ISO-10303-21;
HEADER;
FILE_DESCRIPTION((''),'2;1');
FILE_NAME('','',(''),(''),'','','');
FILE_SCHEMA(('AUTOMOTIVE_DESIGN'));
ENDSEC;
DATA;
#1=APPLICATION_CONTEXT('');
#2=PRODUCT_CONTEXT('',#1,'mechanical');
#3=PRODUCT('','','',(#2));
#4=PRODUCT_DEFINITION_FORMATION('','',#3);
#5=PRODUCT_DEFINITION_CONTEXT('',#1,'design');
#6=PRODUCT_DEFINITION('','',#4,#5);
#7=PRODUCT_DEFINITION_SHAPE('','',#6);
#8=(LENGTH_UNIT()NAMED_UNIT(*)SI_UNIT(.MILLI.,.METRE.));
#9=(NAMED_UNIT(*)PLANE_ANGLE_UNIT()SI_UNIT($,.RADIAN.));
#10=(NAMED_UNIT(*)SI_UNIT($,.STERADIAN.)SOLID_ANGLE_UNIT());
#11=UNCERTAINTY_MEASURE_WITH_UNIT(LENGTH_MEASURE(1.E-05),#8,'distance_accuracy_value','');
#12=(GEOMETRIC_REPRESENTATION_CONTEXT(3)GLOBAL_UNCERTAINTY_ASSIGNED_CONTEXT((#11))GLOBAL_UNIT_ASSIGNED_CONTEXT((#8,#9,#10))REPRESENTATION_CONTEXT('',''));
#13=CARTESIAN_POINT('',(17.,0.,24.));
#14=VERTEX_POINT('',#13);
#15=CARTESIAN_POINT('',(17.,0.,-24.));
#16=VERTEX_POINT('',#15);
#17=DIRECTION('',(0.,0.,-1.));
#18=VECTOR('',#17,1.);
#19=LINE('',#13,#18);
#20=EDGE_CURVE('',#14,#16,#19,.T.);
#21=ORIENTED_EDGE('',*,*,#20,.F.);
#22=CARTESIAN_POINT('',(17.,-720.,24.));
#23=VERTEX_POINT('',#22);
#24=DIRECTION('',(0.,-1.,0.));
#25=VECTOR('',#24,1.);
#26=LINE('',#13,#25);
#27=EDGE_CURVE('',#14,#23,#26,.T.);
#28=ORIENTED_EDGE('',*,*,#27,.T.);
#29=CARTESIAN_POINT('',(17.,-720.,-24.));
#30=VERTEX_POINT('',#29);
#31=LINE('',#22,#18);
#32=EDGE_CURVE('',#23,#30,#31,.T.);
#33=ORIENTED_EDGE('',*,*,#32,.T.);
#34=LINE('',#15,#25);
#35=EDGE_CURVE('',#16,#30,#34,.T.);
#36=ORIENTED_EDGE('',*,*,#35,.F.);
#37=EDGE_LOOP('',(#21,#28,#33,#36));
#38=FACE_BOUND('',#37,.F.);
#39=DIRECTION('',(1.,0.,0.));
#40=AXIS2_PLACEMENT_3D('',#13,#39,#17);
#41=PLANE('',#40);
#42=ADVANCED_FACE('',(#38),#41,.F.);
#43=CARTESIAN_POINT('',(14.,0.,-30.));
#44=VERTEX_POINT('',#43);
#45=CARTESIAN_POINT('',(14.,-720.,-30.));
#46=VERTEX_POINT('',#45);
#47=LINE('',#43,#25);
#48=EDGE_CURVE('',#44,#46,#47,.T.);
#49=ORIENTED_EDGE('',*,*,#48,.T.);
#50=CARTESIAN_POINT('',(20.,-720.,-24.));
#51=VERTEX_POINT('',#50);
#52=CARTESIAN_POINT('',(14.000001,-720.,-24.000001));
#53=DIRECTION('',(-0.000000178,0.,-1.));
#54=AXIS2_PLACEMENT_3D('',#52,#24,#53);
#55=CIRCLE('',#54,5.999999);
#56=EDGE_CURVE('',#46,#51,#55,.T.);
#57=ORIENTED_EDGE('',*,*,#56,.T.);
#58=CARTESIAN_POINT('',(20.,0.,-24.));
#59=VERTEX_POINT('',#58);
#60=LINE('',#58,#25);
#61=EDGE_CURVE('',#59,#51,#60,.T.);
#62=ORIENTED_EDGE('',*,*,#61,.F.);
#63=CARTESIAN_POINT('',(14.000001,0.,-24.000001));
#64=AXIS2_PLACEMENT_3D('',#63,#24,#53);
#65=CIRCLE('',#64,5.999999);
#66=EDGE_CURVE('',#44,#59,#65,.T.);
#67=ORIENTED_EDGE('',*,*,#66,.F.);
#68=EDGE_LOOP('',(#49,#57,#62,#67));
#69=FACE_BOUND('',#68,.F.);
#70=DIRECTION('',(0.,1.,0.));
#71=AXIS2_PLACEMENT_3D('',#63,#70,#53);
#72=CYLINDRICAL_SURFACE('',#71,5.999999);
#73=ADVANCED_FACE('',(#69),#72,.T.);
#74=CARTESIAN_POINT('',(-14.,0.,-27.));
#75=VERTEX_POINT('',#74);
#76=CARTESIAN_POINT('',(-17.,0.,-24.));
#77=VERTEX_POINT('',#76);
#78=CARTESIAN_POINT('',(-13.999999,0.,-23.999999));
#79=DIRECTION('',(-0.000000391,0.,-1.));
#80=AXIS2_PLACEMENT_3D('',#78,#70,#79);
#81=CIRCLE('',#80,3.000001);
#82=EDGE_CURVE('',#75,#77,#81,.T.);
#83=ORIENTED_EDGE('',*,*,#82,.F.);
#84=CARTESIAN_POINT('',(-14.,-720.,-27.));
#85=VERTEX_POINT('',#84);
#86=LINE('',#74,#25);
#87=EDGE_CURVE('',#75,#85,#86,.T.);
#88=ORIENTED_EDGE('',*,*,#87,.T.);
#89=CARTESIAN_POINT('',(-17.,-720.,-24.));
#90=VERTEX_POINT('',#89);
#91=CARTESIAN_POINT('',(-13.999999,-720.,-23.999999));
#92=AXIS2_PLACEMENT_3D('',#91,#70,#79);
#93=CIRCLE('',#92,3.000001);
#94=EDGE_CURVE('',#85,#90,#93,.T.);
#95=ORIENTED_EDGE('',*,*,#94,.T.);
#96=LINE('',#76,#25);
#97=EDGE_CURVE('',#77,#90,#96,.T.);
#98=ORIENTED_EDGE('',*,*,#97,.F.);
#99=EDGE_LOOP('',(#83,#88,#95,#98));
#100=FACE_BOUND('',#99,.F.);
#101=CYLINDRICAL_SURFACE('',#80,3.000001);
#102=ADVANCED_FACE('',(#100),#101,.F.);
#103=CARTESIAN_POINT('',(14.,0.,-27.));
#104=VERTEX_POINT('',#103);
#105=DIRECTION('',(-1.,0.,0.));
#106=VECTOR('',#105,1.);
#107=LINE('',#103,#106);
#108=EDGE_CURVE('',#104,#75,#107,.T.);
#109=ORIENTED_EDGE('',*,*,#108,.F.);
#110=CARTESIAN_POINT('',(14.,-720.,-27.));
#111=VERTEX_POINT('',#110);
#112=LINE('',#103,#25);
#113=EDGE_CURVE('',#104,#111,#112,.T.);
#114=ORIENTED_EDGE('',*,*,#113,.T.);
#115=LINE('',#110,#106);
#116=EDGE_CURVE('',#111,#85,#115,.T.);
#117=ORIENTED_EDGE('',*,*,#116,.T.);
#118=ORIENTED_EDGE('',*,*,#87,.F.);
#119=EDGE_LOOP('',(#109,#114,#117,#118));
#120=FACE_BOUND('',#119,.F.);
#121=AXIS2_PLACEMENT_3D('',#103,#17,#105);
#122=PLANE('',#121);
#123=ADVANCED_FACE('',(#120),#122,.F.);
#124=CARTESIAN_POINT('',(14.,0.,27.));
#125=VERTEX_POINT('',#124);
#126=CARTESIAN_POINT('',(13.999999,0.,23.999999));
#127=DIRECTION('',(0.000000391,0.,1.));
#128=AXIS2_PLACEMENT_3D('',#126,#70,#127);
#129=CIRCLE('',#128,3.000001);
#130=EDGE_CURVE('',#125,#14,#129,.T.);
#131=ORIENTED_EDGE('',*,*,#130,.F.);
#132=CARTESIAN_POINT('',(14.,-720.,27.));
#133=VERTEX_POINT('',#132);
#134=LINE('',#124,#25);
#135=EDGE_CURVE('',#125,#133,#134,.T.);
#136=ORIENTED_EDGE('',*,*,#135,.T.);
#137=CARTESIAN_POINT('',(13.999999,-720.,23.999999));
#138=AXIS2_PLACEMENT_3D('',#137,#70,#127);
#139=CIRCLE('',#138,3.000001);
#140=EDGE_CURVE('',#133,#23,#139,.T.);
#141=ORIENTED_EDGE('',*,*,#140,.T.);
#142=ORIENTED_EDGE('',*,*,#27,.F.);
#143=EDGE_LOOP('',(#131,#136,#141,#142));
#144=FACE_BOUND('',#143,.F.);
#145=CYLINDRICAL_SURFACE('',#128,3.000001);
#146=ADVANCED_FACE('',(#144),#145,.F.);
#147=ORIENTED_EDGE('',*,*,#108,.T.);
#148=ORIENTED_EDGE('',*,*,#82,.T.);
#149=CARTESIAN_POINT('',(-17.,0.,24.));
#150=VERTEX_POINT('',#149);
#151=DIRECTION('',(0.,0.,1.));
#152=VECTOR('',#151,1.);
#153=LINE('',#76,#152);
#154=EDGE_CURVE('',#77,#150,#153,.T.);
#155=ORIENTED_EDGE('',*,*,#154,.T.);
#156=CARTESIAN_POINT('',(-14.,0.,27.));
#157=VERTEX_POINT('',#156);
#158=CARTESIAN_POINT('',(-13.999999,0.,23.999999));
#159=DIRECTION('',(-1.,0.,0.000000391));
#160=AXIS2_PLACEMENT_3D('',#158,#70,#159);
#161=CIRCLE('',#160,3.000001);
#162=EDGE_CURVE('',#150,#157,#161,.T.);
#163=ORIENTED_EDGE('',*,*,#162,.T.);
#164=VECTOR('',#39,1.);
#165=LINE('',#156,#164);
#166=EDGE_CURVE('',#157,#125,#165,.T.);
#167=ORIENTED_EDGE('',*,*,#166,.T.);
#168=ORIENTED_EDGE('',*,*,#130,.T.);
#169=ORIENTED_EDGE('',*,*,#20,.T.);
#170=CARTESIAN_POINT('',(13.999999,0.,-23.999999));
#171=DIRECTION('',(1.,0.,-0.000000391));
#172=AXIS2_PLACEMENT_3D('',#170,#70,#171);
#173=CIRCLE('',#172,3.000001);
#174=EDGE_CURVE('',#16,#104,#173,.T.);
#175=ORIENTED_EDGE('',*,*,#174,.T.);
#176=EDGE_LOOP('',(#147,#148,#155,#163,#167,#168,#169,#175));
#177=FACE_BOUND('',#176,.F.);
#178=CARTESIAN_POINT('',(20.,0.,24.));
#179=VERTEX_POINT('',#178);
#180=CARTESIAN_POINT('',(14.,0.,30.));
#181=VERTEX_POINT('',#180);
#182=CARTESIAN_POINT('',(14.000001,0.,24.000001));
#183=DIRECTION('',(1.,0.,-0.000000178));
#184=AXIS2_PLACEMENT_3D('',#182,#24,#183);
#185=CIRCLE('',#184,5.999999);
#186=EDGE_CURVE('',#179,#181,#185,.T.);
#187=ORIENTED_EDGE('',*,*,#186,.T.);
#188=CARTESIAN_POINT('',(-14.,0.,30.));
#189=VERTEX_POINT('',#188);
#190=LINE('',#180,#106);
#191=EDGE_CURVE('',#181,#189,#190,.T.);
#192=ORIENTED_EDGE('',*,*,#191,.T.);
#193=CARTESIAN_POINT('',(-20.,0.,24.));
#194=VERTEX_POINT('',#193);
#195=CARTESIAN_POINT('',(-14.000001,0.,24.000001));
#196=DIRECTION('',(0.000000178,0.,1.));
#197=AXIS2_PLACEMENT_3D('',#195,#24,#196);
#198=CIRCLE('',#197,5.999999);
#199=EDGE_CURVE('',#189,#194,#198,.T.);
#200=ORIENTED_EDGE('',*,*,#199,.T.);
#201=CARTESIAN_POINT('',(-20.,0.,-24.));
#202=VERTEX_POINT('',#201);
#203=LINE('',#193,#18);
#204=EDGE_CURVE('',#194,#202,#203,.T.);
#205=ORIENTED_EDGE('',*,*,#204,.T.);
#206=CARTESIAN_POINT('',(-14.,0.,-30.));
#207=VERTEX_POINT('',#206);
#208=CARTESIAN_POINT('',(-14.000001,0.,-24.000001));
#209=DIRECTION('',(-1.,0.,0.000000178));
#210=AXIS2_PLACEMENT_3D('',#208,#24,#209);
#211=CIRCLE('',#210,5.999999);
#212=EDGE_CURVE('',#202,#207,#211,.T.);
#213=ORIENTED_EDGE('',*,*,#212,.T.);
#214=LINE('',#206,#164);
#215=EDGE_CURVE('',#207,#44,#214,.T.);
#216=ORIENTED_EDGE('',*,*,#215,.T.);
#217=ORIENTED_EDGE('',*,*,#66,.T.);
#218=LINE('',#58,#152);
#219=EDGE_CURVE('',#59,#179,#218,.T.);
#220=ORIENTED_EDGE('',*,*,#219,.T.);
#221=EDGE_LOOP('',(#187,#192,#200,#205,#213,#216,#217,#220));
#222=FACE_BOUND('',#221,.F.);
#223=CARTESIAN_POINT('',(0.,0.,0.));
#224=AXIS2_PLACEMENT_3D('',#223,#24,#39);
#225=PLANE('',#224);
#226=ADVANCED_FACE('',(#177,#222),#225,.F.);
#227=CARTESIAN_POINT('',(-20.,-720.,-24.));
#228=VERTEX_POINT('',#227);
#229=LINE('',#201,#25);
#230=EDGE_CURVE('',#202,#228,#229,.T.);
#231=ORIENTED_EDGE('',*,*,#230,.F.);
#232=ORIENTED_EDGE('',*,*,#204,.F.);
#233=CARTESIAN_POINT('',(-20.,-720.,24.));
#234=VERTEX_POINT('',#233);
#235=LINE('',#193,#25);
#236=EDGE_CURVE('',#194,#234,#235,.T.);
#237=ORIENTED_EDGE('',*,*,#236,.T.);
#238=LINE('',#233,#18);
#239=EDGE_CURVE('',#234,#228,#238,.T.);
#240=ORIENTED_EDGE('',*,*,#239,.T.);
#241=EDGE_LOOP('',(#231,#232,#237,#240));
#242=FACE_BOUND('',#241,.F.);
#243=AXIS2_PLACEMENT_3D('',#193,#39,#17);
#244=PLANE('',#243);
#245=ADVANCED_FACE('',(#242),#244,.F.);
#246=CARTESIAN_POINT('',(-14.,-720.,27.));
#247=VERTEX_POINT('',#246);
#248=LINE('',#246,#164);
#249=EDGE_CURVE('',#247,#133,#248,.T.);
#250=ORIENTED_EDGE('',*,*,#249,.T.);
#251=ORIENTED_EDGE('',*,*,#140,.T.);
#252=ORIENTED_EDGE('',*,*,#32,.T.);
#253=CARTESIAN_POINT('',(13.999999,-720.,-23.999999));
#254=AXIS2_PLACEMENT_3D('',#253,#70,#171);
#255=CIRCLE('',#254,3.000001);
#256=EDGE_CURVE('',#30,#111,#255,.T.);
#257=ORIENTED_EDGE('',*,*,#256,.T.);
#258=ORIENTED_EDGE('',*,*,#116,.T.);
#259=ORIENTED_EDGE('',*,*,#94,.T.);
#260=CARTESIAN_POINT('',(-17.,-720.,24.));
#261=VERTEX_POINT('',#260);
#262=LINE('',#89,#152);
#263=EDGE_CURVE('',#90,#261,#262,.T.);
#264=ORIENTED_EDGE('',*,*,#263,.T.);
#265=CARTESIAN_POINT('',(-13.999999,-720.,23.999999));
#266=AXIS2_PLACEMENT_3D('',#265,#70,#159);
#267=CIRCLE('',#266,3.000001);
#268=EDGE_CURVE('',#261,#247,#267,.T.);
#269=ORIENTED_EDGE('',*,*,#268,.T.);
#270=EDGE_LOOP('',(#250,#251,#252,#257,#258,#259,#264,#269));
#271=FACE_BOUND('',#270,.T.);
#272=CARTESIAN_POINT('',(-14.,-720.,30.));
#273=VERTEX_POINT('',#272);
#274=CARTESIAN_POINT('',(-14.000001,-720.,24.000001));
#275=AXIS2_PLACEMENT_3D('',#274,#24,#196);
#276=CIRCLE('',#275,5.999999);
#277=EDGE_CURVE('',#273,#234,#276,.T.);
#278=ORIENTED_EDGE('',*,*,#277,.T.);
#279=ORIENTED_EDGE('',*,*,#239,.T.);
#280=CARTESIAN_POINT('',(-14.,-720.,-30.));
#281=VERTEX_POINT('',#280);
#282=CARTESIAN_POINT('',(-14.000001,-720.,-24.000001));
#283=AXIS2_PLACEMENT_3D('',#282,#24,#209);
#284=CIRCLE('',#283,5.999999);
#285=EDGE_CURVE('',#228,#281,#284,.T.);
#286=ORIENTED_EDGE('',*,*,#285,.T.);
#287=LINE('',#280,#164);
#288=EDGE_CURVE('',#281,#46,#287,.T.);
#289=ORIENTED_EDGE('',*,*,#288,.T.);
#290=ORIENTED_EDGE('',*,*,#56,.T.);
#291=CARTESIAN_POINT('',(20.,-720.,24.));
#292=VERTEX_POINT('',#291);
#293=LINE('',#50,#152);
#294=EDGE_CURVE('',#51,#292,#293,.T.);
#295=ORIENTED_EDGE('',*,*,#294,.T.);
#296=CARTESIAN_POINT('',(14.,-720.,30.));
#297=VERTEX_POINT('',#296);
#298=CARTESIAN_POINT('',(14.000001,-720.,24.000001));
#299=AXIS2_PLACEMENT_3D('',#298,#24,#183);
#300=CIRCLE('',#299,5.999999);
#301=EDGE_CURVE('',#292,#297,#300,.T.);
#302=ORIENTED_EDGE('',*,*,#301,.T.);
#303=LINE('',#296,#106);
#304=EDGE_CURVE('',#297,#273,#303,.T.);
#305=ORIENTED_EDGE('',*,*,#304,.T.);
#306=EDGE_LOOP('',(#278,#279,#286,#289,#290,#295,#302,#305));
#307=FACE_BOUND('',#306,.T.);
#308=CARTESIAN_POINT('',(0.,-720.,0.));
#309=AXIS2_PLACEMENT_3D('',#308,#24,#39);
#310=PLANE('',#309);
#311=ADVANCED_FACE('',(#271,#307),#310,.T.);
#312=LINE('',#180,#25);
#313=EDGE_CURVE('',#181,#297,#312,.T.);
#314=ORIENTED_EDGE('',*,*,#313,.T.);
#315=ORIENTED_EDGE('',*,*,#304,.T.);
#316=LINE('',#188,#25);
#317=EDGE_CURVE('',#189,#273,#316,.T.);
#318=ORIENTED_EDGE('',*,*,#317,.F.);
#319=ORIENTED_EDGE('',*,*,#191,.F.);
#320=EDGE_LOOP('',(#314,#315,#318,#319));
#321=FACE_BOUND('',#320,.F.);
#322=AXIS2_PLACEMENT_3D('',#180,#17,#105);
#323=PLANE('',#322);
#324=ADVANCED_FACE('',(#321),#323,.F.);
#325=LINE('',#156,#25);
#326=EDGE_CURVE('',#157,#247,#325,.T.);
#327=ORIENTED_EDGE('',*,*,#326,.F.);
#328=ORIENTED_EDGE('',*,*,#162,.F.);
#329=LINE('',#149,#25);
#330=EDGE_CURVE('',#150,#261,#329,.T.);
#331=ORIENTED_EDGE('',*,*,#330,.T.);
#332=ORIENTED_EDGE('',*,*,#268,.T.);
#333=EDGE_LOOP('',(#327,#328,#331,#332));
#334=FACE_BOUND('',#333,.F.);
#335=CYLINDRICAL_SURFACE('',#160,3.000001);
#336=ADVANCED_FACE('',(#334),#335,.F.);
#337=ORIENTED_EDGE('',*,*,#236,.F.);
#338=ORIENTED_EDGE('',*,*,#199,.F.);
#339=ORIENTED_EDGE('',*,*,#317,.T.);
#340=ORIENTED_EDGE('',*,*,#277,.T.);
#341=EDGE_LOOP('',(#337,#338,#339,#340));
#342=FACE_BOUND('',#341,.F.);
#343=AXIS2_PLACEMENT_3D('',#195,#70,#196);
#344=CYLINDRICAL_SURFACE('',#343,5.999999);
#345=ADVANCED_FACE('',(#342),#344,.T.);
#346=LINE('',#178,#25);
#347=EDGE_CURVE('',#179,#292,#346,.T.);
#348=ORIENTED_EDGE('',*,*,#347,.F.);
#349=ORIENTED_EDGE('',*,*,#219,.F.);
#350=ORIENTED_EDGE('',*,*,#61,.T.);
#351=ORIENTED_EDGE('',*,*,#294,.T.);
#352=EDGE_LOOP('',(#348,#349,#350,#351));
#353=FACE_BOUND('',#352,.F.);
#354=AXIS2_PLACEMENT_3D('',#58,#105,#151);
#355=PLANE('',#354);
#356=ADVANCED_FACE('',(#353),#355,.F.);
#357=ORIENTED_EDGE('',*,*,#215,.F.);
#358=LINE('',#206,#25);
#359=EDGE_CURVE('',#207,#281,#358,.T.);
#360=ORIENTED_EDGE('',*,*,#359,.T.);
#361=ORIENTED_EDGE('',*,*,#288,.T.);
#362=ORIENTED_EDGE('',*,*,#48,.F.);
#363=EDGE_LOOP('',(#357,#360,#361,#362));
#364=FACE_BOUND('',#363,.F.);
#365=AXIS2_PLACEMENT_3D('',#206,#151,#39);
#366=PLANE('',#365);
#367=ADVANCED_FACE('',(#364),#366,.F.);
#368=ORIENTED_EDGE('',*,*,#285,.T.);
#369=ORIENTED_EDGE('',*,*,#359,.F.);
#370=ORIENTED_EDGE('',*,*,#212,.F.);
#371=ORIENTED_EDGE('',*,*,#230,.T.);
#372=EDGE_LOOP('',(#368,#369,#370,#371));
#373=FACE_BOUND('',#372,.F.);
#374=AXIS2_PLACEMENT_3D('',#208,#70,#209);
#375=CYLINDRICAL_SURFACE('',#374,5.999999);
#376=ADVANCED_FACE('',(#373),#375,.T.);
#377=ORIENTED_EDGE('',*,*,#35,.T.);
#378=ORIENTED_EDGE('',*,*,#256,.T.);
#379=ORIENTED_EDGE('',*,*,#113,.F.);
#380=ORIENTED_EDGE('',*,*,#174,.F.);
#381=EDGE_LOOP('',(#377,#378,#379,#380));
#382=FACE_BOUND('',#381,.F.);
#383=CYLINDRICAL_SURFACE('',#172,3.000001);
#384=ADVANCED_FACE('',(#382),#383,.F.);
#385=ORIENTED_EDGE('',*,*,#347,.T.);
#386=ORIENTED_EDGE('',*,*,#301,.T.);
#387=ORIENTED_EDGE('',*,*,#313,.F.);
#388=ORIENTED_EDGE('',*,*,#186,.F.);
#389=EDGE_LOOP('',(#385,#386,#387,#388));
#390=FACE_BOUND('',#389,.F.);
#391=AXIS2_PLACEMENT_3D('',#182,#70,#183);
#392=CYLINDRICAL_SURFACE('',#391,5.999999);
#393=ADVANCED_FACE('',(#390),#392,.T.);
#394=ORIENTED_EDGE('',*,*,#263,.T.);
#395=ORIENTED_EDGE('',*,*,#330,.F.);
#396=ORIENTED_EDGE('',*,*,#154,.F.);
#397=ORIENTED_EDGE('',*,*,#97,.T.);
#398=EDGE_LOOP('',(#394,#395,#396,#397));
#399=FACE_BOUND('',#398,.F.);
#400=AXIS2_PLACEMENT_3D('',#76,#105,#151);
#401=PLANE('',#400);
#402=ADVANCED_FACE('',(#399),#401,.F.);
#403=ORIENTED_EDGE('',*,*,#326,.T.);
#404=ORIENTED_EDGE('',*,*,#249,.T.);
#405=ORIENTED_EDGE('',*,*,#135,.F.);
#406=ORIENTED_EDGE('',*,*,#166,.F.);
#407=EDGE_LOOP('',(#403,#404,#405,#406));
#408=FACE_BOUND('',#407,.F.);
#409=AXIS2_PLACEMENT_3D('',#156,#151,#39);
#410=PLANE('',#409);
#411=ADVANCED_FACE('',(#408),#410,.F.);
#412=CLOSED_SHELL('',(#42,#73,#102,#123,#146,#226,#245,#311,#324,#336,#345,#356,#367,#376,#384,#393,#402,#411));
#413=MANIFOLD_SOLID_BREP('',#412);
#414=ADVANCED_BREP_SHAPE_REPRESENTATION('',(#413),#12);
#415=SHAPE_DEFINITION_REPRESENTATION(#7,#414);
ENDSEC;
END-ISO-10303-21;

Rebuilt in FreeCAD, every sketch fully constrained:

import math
import FreeCAD as App
import Part
import Sketcher

doc = App.newDocument("Part")
body = doc.addObject("PartDesign::Body", "Body")

# Sketch on XZ plane
sketch1 = doc.addObject("Sketcher::SketchObject", "Sketch")
body.addObject(sketch1)
sketch1.AttachmentSupport = (doc.XZ_Plane, [""])
sketch1.MapMode = "FlatFace"
sketch1.addGeometry([
    Part.LineSegment(App.Vector(14, 30, 0), App.Vector(-14, 30, 0)),  # 0
    Part.ArcOfCircle(Part.Circle(App.Vector(-14, 24, 0), App.Vector(0, 0, 1), 6), math.radians(90), math.radians(180)),  # 1
    Part.LineSegment(App.Vector(-20, 24, 0), App.Vector(-20, -24, 0)),  # 2
    Part.ArcOfCircle(Part.Circle(App.Vector(-14, -24, 0), App.Vector(0, 0, 1), 6), math.radians(180), math.radians(270)),  # 3
    Part.LineSegment(App.Vector(-14, -30, 0), App.Vector(14, -30, 0)),  # 4
    Part.ArcOfCircle(Part.Circle(App.Vector(14, -24, 0), App.Vector(0, 0, 1), 6), math.radians(-90), math.radians(0)),  # 5
    Part.LineSegment(App.Vector(20, -24, 0), App.Vector(20, 24, 0)),  # 6
    Part.ArcOfCircle(Part.Circle(App.Vector(14, 24, 0), App.Vector(0, 0, 1), 6), math.radians(0), math.radians(90)),  # 7
    Part.ArcOfCircle(Part.Circle(App.Vector(-14, -24, 0), App.Vector(0, 0, 1), 3), math.radians(-180), math.radians(-90)),  # 8
    Part.LineSegment(App.Vector(-17, -24, 0), App.Vector(-17, 24, 0)),  # 9
    Part.ArcOfCircle(Part.Circle(App.Vector(-14, 24, 0), App.Vector(0, 0, 1), 3), math.radians(90), math.radians(180)),  # 10
    Part.LineSegment(App.Vector(-14, 27, 0), App.Vector(14, 27, 0)),  # 11
    Part.ArcOfCircle(Part.Circle(App.Vector(14, 24, 0), App.Vector(0, 0, 1), 3), math.radians(0), math.radians(90)),  # 12
    Part.LineSegment(App.Vector(17, 24, 0), App.Vector(17, -24, 0)),  # 13
    Part.ArcOfCircle(Part.Circle(App.Vector(14, -24, 0), App.Vector(0, 0, 1), 3), math.radians(-90), math.radians(0)),  # 14
    Part.LineSegment(App.Vector(14, -27, 0), App.Vector(-14, -27, 0)),  # 15
], False)
sketch1.addConstraint([
    Sketcher.Constraint("Tangent", 0, 2, 1, 1),
    Sketcher.Constraint("Tangent", 1, 2, 2, 1),
    Sketcher.Constraint("Tangent", 2, 2, 3, 1),
    Sketcher.Constraint("Tangent", 3, 2, 4, 1),
    Sketcher.Constraint("Tangent", 4, 2, 5, 1),
    Sketcher.Constraint("Tangent", 5, 2, 6, 1),
    Sketcher.Constraint("Tangent", 6, 2, 7, 1),
    Sketcher.Constraint("Tangent", 7, 2, 0, 1),
    Sketcher.Constraint("Tangent", 8, 1, 9, 1),
    Sketcher.Constraint("Tangent", 9, 2, 10, 2),
    Sketcher.Constraint("Tangent", 10, 1, 11, 1),
    Sketcher.Constraint("Tangent", 11, 2, 12, 2),
    Sketcher.Constraint("Tangent", 12, 1, 13, 1),
    Sketcher.Constraint("Tangent", 13, 2, 14, 2),
    Sketcher.Constraint("Tangent", 14, 1, 15, 1),
    Sketcher.Constraint("Tangent", 15, 2, 8, 2),
    Sketcher.Constraint("Horizontal", 0),
    Sketcher.Constraint("Vertical", 2),
    Sketcher.Constraint("Horizontal", 4),
    Sketcher.Constraint("Vertical", 6),
    Sketcher.Constraint("Vertical", 9),
    Sketcher.Constraint("Horizontal", 11),
    Sketcher.Constraint("Vertical", 13),
    Sketcher.Constraint("Horizontal", 15),
    Sketcher.Constraint("Coincident", 8, 3, 3, 3),
    Sketcher.Constraint("Coincident", 10, 3, 1, 3),
    Sketcher.Constraint("Coincident", 12, 3, 7, 3),
    Sketcher.Constraint("Equal", 1, 3),
    Sketcher.Constraint("Equal", 3, 5),
    Sketcher.Constraint("Equal", 5, 7),
    Sketcher.Constraint("Equal", 12, 14),
    Sketcher.Constraint("Symmetric", 1, 3, 5, 3, -1, 1),
    Sketcher.Constraint("Radius", 1, 5.999999),
    Sketcher.Constraint("Radius", 8, 3.000001),
    Sketcher.Constraint("DistanceX", 0, 2, 0, 1, 28.0),
    Sketcher.Constraint("DistanceY", 2, 2, 2, 1, 48.0),
])
pad1 = doc.addObject("PartDesign::Pad", "Pad")
body.addObject(pad1)
pad1.Profile = sketch1
pad1.Length = 720

doc.recompute()
